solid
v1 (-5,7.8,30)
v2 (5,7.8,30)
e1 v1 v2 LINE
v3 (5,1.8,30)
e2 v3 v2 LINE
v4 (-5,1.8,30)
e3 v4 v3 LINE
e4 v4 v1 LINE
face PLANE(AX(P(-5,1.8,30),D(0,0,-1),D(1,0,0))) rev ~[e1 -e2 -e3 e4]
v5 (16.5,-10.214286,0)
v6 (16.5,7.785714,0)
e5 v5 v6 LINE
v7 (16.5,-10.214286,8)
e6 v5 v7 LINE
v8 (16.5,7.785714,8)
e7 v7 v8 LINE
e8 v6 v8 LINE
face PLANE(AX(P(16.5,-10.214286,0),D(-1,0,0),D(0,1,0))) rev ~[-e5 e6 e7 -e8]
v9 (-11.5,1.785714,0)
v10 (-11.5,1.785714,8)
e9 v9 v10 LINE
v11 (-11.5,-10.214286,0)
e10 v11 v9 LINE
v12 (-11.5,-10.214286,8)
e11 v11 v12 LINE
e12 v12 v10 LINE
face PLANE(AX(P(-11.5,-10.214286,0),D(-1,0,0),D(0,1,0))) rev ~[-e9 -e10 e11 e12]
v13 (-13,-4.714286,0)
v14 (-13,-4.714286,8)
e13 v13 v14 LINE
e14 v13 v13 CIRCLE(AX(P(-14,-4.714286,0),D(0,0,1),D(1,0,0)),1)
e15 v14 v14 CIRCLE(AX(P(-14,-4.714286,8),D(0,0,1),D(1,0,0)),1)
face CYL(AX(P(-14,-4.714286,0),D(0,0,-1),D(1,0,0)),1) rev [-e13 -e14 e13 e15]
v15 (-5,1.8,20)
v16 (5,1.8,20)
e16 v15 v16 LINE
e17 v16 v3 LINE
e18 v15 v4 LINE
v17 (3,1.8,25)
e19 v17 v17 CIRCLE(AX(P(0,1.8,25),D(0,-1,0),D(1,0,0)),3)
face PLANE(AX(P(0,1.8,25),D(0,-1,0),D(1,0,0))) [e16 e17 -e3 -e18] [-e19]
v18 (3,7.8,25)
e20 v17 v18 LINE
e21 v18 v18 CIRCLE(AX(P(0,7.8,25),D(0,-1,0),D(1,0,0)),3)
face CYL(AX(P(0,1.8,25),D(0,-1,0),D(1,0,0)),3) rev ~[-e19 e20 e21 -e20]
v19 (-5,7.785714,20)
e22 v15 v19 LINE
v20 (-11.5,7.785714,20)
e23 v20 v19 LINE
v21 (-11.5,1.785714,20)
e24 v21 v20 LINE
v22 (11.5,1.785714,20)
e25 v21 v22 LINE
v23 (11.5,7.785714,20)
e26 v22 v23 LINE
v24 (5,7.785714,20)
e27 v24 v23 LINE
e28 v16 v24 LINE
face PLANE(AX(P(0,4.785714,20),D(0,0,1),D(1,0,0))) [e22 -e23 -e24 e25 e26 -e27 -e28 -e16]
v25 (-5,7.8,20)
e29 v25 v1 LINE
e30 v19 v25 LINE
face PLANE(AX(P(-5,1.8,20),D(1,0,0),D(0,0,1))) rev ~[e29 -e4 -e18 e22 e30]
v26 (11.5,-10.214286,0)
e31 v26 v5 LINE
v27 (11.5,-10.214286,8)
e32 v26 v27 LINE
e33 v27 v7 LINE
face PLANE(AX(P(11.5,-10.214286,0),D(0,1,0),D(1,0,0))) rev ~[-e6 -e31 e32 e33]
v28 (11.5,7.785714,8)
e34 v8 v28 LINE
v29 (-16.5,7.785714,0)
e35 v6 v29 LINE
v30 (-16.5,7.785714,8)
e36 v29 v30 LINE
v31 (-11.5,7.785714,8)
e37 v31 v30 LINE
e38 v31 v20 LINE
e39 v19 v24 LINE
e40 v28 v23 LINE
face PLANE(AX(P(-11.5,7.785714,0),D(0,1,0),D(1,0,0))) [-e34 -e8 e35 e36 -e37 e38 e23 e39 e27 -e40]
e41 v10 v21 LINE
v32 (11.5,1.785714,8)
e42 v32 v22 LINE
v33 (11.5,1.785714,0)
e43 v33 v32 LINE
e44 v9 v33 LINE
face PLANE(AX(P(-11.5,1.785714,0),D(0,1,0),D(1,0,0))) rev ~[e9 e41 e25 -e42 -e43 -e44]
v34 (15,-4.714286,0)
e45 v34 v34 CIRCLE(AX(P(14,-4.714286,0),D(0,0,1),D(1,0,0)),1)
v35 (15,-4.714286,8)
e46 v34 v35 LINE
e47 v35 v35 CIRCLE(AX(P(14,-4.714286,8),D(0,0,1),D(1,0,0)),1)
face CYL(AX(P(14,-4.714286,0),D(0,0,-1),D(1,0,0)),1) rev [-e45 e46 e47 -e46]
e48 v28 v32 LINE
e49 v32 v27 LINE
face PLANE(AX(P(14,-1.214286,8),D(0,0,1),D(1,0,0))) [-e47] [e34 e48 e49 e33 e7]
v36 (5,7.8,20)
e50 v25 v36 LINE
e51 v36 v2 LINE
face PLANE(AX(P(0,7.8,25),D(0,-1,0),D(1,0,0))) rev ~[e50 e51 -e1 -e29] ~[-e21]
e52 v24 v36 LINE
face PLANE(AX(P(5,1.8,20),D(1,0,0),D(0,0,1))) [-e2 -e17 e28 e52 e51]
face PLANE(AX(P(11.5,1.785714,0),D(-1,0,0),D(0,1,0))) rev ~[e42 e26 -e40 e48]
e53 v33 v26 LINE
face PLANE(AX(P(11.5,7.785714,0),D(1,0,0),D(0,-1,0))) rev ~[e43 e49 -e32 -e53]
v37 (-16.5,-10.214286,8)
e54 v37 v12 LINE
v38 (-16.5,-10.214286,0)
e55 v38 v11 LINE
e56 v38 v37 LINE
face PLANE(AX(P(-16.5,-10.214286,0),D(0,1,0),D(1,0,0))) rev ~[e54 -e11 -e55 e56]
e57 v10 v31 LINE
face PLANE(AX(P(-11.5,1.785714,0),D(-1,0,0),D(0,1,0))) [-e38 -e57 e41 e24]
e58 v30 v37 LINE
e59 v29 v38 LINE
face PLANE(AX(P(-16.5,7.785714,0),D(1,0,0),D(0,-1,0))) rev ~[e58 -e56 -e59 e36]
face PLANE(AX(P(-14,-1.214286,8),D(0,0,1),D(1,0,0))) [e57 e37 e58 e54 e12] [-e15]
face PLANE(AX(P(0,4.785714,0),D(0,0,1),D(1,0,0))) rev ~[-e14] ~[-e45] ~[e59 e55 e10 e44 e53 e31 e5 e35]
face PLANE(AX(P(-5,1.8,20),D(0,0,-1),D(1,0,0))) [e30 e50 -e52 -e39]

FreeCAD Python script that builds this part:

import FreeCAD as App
import Part
import Sketcher

V = App.Vector
Q = App.Units.Quantity

doc = App.newDocument("Part")
body = doc.addObject("PartDesign::Body", "Body")

# Sketch on XY plane
sketch1 = body.newObject("Sketcher::SketchObject", "Sketch")
sketch1.AttachmentSupport = (doc.getObject("XY_Plane"), [""])
sketch1.MapMode = "FlatFace"
sketch1.addGeometry(Part.LineSegment(V(-11.5, 7.8, 0), V(-16.5, 7.8, 0)), False)
sketch1.addGeometry(Part.LineSegment(V(-16.5, 7.8, 0), V(-16.5, -10.2, 0)), False)
sketch1.addGeometry(Part.LineSegment(V(-16.5, -10.2, 0), V(-11.5, -10.2, 0)), False)
sketch1.addGeometry(Part.LineSegment(V(-11.5, -10.2, 0), V(-11.5, 7.8, 0)), False)
sketch1.addGeometry(Part.Circle(V(-14, -4.7, 0), V(0, 0, 1), 1), False)
sketch1.addConstraint(Sketcher.Constraint("Coincident", 0, 2, 1, 1))
sketch1.addConstraint(Sketcher.Constraint("Coincident", 1, 2, 2, 1))
sketch1.addConstraint(Sketcher.Constraint("Coincident", 2, 2, 3, 1))
sketch1.addConstraint(Sketcher.Constraint("Coincident", 3, 2, 0, 1))
sketch1.addConstraint(Sketcher.Constraint("Horizontal", 0))
sketch1.addConstraint(Sketcher.Constraint("Vertical", 1))
sketch1.addConstraint(Sketcher.Constraint("Horizontal", 2))
sketch1.addConstraint(Sketcher.Constraint("Vertical", 3))
sketch1.addConstraint(Sketcher.Constraint("Diameter", 4, Q("2 mm")))
sketch1.addConstraint(Sketcher.Constraint("DistanceX", 0, 2, 0, 1, Q("5 mm")))
sketch1.addConstraint(Sketcher.Constraint("DistanceY", 1, 2, 1, 1, Q("18 mm")))
sketch1.addConstraint(Sketcher.Constraint("DistanceX", 4, 3, -1, 1, Q("14 mm")))
sketch1.addConstraint(Sketcher.Constraint("DistanceX", 0, 2, -1, 1, Q("16.5 mm")))
sketch1.addConstraint(Sketcher.Constraint("DistanceY", 4, 3, 0, 2, Q("12.5 mm")))
sketch1.addConstraint(Sketcher.Constraint("DistanceY", 4, 3, -1, 1, Q("4.714286 mm")))
pad1 = body.newObject("PartDesign::Pad", "Pad")
pad1.Profile = sketch1
pad1.Length = 8
body2 = doc.addObject("PartDesign::Body", "Body001")

# Sketch on XY plane
sketch2 = body2.newObject("Sketcher::SketchObject", "Sketch001")
sketch2.AttachmentSupport = (doc.getObject("XY_Plane001"), [""])
sketch2.MapMode = "FlatFace"
sketch2.addGeometry(Part.LineSegment(V(16.5, 7.8, 0), V(11.5, 7.8, 0)), False)
sketch2.addGeometry(Part.LineSegment(V(11.5, 7.8, 0), V(11.5, -10.2, 0)), False)
sketch2.addGeometry(Part.LineSegment(V(11.5, -10.2, 0), V(16.5, -10.2, 0)), False)
sketch2.addGeometry(Part.LineSegment(V(16.5, -10.2, 0), V(16.5, 7.8, 0)), False)
sketch2.addGeometry(Part.Circle(V(14, -4.7, 0), V(0, 0, 1), 1), False)
sketch2.addConstraint(Sketcher.Constraint("Coincident", 0, 2, 1, 1))
sketch2.addConstraint(Sketcher.Constraint("Coincident", 1, 2, 2, 1))
sketch2.addConstraint(Sketcher.Constraint("Coincident", 2, 2, 3, 1))
sketch2.addConstraint(Sketcher.Constraint("Coincident", 3, 2, 0, 1))
sketch2.addConstraint(Sketcher.Constraint("Horizontal", 0))
sketch2.addConstraint(Sketcher.Constraint("Vertical", 1))
sketch2.addConstraint(Sketcher.Constraint("Horizontal", 2))
sketch2.addConstraint(Sketcher.Constraint("Vertical", 3))
sketch2.addConstraint(Sketcher.Constraint("Diameter", 4, Q("2 mm")))
sketch2.addConstraint(Sketcher.Constraint("DistanceX", 0, 2, 0, 1, Q("5 mm")))
sketch2.addConstraint(Sketcher.Constraint("DistanceY", 1, 2, 1, 1, Q("18 mm")))
sketch2.addConstraint(Sketcher.Constraint("DistanceX", -1, 1, 4, 3, Q("14 mm")))
sketch2.addConstraint(Sketcher.Constraint("DistanceX", -1, 1, 0, 2, Q("11.5 mm")))
sketch2.addConstraint(Sketcher.Constraint("DistanceY", 4, 3, 0, 2, Q("12.5 mm")))
sketch2.addConstraint(Sketcher.Constraint("DistanceY", 4, 3, -1, 1, Q("4.714286 mm")))
pad2 = body2.newObject("PartDesign::Pad", "Pad001")
pad2.Profile = sketch2
pad2.Length = 8
body.AllowCompound = True
doc.recompute()

boolean = body.newObject("PartDesign::Boolean", "Boolean")
boolean.Type = "Fuse"
boolean.addObjects([body2])

# Sketch on XY plane
sketch3 = body.newObject("Sketcher::SketchObject", "Sketch002")
sketch3.AttachmentSupport = (doc.getObject("XY_Plane"), [""])
sketch3.MapMode = "FlatFace"
sketch3.addGeometry(Part.LineSegment(V(-12, 8, 0), V(-12, 2, 0)), False)
sketch3.addGeometry(Part.LineSegment(V(-12, 2, 0), V(12, 2, 0)), False)
sketch3.addGeometry(Part.LineSegment(V(12, 2, 0), V(12, 8, 0)), False)
sketch3.addGeometry(Part.LineSegment(V(12, 8, 0), V(-12, 8, 0)), False)
sketch3.addConstraint(Sketcher.Constraint("Coincident", 0, 2, 1, 1))
sketch3.addConstraint(Sketcher.Constraint("Coincident", 1, 2, 2, 1))
sketch3.addConstraint(Sketcher.Constraint("Coincident", 2, 2, 3, 1))
sketch3.addConstraint(Sketcher.Constraint("Coincident", 3, 2, 0, 1))
sketch3.addConstraint(Sketcher.Constraint("Vertical", 0))
sketch3.addConstraint(Sketcher.Constraint("Horizontal", 1))
sketch3.addConstraint(Sketcher.Constraint("Vertical", 2))
sketch3.addConstraint(Sketcher.Constraint("Horizontal", 3))
sketch3.addConstraint(Sketcher.Constraint("DistanceX", 1, 1, 1, 2, Q("23 mm")))
sketch3.addConstraint(Sketcher.Constraint("DistanceY", 0, 2, 0, 1, Q("6 mm")))
sketch3.addConstraint(Sketcher.Constraint("DistanceX", 0, 2, -1, 1, Q("11.5 mm")))
sketch3.addConstraint(Sketcher.Constraint("DistanceY", -1, 1, 0, 2, Q("1.785714 mm")))
pad3 = body.newObject("PartDesign::Pad", "Pad002")
pad3.Profile = sketch3
pad3.Length = 20

# Sketch on XZ plane
sketch4 = body.newObject("Sketcher::SketchObject", "Sketch003")
sketch4.AttachmentSupport = (doc.getObject("XZ_Plane"), [""])
sketch4.MapMode = "FlatFace"
sketch4.AttachmentOffset = App.Placement(V(0, 0, -1.8), App.Rotation())
sketch4.addGeometry(Part.LineSegment(V(-5, 30, 0), V(-5, 20, 0)), False)
sketch4.addGeometry(Part.LineSegment(V(-5, 20, 0), V(5, 20, 0)), False)
sketch4.addGeometry(Part.LineSegment(V(5, 20, 0), V(5, 30, 0)), False)
sketch4.addGeometry(Part.LineSegment(V(5, 30, 0), V(-5, 30, 0)), False)
sketch4.addGeometry(Part.Circle(V(0, 25, 0), V(0, 0, 1), 3), False)
sketch4.addConstraint(Sketcher.Constraint("Coincident", 0, 2, 1, 1))
sketch4.addConstraint(Sketcher.Constraint("Coincident", 1, 2, 2, 1))
sketch4.addConstraint(Sketcher.Constraint("Coincident", 2, 2, 3, 1))
sketch4.addConstraint(Sketcher.Constraint("Coincident", 3, 2, 0, 1))
sketch4.addConstraint(Sketcher.Constraint("Vertical", 0))
sketch4.addConstraint(Sketcher.Constraint("Horizontal", 1))
sketch4.addConstraint(Sketcher.Constraint("Vertical", 2))
sketch4.addConstraint(Sketcher.Constraint("Horizontal", 3))
sketch4.addConstraint(Sketcher.Constraint("PointOnObject", 4, 3, -2))
sketch4.addConstraint(Sketcher.Constraint("Equal", 3, 0))
sketch4.addConstraint(Sketcher.Constraint("Diameter", 4, Q("6 mm")))
sketch4.addConstraint(Sketcher.Constraint("DistanceX", 1, 1, 1, 2, Q("10 mm")))
sketch4.addConstraint(Sketcher.Constraint("DistanceY", -1, 1, 4, 3, Q("25 mm")))
sketch4.addConstraint(Sketcher.Constraint("DistanceX", 0, 2, -1, 1, Q("5 mm")))
sketch4.addConstraint(Sketcher.Constraint("DistanceY", -1, 1, 0, 2, Q("20 mm")))
pad4 = body.newObject("PartDesign::Pad", "Pad003")
pad4.Profile = sketch4
pad4.Length = 6
pad4.Reversed = True

doc.recompute()
